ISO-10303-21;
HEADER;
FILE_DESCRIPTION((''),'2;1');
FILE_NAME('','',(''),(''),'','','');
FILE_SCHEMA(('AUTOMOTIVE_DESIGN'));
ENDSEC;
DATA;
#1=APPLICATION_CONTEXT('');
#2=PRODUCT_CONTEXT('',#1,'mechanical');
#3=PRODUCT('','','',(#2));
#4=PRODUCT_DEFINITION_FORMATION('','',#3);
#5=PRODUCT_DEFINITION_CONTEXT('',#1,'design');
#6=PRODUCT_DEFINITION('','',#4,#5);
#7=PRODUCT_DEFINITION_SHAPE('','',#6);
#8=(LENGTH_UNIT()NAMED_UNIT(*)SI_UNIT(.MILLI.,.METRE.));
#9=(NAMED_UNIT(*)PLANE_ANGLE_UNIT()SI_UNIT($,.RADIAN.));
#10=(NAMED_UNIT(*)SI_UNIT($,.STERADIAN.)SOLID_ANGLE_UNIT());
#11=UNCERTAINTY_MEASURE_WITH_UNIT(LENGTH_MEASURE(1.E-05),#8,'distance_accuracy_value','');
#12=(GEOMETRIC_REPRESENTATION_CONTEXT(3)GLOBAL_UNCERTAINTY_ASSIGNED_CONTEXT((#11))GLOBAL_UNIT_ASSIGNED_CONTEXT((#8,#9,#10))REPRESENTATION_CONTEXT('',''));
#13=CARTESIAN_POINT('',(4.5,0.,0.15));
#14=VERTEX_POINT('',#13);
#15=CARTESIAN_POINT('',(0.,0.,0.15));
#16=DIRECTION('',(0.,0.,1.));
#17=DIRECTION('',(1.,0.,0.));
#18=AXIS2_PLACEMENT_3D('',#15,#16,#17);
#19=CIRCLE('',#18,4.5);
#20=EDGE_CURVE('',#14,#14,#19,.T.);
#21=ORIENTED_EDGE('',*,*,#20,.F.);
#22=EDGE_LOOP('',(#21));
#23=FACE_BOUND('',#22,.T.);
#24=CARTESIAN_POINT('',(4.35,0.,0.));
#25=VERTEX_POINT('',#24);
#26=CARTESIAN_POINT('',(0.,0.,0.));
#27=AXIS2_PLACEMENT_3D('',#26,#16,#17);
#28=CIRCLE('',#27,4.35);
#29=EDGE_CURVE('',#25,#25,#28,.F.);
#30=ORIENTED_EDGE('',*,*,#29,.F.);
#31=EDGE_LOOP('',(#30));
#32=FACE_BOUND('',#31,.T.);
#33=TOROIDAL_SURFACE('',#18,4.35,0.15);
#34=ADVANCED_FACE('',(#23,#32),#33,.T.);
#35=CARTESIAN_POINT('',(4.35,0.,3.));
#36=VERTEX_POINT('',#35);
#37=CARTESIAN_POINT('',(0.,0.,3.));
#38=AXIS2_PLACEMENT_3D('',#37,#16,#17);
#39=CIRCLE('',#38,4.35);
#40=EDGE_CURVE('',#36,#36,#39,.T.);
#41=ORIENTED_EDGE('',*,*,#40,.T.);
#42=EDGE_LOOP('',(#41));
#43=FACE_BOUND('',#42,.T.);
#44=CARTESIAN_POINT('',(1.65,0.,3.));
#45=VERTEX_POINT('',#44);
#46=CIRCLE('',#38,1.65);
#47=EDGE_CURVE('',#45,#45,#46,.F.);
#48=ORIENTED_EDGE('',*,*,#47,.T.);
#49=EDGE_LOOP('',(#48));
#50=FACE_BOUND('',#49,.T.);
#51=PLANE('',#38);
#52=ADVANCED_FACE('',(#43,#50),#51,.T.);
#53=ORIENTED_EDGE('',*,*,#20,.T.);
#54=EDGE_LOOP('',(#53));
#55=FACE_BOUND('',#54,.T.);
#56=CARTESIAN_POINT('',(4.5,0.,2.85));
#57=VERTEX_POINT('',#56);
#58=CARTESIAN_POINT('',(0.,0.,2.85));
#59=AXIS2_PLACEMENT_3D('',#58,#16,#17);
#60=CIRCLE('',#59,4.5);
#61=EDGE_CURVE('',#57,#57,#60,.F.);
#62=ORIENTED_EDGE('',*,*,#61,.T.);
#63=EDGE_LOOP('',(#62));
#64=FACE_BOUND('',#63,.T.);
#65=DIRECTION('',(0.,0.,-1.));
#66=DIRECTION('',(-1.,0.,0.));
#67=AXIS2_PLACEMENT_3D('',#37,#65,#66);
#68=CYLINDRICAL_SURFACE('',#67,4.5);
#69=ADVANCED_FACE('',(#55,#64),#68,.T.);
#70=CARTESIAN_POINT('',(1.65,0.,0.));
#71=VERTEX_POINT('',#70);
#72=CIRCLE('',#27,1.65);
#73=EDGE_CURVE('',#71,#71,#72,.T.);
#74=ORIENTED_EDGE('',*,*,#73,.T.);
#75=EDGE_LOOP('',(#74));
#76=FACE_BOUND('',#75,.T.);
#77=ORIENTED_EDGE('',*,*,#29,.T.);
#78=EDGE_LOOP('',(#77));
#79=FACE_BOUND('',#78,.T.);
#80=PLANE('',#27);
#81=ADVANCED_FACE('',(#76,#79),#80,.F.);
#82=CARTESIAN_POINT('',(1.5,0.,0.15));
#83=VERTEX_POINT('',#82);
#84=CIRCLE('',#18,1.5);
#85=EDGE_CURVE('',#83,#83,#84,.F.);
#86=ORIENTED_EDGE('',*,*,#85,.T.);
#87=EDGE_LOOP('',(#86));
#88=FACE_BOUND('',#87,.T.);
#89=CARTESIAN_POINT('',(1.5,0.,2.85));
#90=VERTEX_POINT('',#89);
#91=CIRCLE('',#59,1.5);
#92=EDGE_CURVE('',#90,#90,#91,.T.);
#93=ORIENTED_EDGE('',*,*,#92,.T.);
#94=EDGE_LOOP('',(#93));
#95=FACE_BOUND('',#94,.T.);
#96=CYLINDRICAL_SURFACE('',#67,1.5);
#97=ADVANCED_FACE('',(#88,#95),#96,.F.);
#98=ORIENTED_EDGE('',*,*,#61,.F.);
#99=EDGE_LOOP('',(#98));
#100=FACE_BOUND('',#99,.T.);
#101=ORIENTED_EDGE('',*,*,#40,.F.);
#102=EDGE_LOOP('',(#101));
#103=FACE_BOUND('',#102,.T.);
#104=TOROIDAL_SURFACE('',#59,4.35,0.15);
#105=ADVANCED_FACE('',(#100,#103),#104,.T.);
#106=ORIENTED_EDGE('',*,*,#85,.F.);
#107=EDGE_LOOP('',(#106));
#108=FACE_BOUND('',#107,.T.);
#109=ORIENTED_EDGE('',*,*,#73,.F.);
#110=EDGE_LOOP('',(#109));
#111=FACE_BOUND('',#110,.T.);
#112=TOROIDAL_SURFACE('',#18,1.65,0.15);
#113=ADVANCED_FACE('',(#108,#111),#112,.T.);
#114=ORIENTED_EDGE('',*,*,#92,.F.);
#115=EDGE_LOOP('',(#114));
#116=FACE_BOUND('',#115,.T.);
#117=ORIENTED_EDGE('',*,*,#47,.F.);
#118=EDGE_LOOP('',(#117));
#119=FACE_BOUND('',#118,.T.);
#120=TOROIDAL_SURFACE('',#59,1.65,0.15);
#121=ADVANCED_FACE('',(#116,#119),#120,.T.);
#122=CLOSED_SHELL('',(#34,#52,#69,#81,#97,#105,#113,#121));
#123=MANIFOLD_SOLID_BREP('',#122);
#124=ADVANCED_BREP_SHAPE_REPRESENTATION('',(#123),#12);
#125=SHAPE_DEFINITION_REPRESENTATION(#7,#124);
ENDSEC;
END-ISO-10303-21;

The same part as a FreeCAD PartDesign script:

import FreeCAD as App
import Part
import Sketcher
from FreeCAD import Vector


def edges_at(feature, points):
    """Names of the edges that pass closest to the given points."""
    edges = feature.Shape.Edges
    near = lambda p: min(range(len(edges)), key=lambda i: edges[i].distToShape(Part.Vertex(*p))[0])
    return sorted({f"Edge{near(p) + 1}" for p in points})

doc = App.newDocument("Part")
body = doc.addObject("PartDesign::Body", "Body")

sketch1 = doc.addObject("Sketcher::SketchObject", "Sketch")
body.addObject(sketch1)
sketch1.AttachmentSupport = (doc.XY_Plane, [""])
sketch1.MapMode = "FlatFace"
sketch1.addGeometry(Part.Circle(Vector(0, 0, 0), Vector(0, 0, 1), 4.5), False)
sketch1.addGeometry(Part.Circle(Vector(0, 0, 0), Vector(0, 0, 1), 1.5), False)
sketch1.addConstraint(Sketcher.Constraint("Coincident", 0, 3, -1, 1))
sketch1.addConstraint(Sketcher.Constraint("Coincident", 1, 3, -1, 1))
sketch1.addConstraint(Sketcher.Constraint("Diameter", 0, 9.0))
sketch1.addConstraint(Sketcher.Constraint("Diameter", 1, 3.0))
pad1 = doc.addObject("PartDesign::Pad", "Pad")
body.addObject(pad1)
pad1.Profile = sketch1
pad1.Length = 3
doc.recompute()

fillet = doc.addObject("PartDesign::Fillet", "Fillet")
body.addObject(fillet)
fillet.Base = (pad1, edges_at(pad1, [
    (-4.5, 0, 0),
    (-4.5, 0, 3),
    (-1.5, 0, 0),
    (-1.5, 0, 3),
]))
fillet.Radius = 0.15

doc.recompute()
